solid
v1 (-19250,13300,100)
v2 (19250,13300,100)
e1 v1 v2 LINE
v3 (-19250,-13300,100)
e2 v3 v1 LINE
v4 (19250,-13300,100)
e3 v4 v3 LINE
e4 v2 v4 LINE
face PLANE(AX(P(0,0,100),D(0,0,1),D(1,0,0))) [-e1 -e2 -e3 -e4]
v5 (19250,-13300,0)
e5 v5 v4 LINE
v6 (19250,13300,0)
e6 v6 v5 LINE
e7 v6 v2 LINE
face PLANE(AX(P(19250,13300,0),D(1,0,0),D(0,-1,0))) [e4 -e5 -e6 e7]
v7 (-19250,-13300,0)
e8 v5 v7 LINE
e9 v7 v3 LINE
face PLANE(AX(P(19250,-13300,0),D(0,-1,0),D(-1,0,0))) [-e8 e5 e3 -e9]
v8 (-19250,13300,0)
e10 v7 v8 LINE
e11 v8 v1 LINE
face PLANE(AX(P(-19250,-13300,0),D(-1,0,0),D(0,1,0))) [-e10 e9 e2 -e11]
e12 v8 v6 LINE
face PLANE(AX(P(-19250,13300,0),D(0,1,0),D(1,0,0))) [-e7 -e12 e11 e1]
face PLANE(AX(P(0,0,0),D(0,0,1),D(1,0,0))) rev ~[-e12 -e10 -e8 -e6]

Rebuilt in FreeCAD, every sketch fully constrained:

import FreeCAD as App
import Part
import Sketcher
Q = App.Units.Quantity

doc = App.newDocument("Part")
params = doc.addObject("Spreadsheet::Sheet", "Params")
for row, (alias, value) in enumerate([
    ("sketch1_width", "38500 mm"),
    ("sketch1_height", "26600 mm"),
    ("pad1_length", "100 mm"),
], start=1):
    params.set(f"A{row}", alias)
    params.set(f"B{row}", "=" + value)
    params.setAlias(f"B{row}", alias)

body = doc.addObject("PartDesign::Body", "Body")

sketch1 = body.newObject("Sketcher::SketchObject", "Sketch")
sketch1.AttachmentSupport = (doc.getObject("XY_Plane"), [""])
sketch1.MapMode = "FlatFace"
sketch1.addGeometry([
    Part.LineSegment(App.Vector(19250, 13300, 0), App.Vector(-19250, 13300, 0)),
    Part.LineSegment(App.Vector(-19250, 13300, 0), App.Vector(-19250, -13300, 0)),
    Part.LineSegment(App.Vector(-19250, -13300, 0), App.Vector(19250, -13300, 0)),
    Part.LineSegment(App.Vector(19250, -13300, 0), App.Vector(19250, 13300, 0)),
], False)
sketch1.addConstraint([
    Sketcher.Constraint("Coincident", 0, 2, 1, 1),
    Sketcher.Constraint("Coincident", 1, 2, 2, 1),
    Sketcher.Constraint("Coincident", 2, 2, 3, 1),
    Sketcher.Constraint("Coincident", 3, 2, 0, 1),
    Sketcher.Constraint("Horizontal", 0),
    Sketcher.Constraint("Vertical", 1),
    Sketcher.Constraint("Horizontal", 2),
    Sketcher.Constraint("Vertical", 3),
    Sketcher.Constraint("Symmetric", 0, 2, 2, 2, -1, 1),
    Sketcher.Constraint("DistanceX", 0, 2, 0, 1, Q("38500 mm")),
    Sketcher.Constraint("DistanceY", 1, 2, 1, 1, Q("26600 mm")),
])
sketch1.setExpression("Constraints[9]", "Params.sketch1_width")
sketch1.setExpression("Constraints[10]", "Params.sketch1_height")
pad1 = body.newObject("PartDesign::Pad", "Pad")
pad1.Profile = sketch1
pad1.setExpression("Length", "Params.pad1_length")

doc.recompute()
